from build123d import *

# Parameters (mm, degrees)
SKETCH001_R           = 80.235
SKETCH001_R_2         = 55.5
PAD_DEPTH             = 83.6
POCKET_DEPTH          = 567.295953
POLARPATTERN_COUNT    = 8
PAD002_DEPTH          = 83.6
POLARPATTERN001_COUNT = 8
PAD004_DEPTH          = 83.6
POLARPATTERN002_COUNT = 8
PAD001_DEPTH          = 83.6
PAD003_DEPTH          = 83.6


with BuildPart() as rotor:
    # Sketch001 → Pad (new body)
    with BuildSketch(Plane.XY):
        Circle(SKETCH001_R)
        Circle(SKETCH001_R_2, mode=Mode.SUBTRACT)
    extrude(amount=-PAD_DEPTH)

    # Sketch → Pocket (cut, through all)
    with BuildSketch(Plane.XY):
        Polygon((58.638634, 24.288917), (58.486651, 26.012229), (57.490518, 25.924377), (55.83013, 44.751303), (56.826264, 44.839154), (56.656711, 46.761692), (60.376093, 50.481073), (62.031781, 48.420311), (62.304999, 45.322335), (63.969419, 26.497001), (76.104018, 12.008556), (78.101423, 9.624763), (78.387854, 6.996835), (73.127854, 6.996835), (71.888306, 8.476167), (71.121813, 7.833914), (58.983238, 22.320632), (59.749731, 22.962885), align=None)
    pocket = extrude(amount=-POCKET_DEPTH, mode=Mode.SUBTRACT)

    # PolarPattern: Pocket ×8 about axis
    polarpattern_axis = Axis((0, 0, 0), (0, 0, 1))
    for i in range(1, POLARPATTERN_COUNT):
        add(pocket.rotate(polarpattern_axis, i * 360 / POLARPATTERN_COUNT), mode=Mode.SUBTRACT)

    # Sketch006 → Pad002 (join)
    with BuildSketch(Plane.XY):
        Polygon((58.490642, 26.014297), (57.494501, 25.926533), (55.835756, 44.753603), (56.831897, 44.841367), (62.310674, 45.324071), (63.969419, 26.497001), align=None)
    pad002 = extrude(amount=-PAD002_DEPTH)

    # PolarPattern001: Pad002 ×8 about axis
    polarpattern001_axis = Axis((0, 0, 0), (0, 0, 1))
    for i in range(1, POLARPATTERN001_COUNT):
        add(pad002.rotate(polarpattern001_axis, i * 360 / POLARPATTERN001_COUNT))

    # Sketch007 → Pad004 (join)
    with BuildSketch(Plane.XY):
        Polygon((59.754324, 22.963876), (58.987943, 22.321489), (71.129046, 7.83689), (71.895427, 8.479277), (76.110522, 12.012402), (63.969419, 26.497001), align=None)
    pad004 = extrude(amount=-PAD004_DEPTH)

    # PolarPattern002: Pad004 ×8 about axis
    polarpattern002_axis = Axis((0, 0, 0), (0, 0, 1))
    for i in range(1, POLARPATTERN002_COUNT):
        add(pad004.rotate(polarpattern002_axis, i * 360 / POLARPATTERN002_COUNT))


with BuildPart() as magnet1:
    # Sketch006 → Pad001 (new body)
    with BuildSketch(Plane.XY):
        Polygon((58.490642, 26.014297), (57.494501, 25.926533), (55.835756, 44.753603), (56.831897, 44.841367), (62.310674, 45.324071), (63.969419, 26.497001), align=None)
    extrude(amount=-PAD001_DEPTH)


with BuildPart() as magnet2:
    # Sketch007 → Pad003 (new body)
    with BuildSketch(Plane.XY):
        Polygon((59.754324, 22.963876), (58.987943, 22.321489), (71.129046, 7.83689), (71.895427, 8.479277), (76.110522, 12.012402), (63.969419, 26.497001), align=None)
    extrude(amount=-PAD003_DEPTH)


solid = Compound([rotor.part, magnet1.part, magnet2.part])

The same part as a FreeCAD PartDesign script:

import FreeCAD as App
import Part
import Sketcher
from FreeCAD import Vector
Q = App.Units.Quantity

doc = App.newDocument("Part")
body = doc.addObject("PartDesign::Body", "Body")

# Sketch on XY plane
sketch1 = body.newObject("Sketcher::SketchObject", "Sketch")
sketch1.AttachmentSupport = (doc.getObject("XY_Plane"), [""])
sketch1.MapMode = "FlatFace"
sketch1.addGeometry(Part.Circle(Vector(0, 0, 0), Vector(0, 0, 1), 80.235), False)
sketch1.addGeometry(Part.Circle(Vector(0, 0, 0), Vector(0, 0, 1), 55.5), False)
sketch1.addConstraint(Sketcher.Constraint("Coincident", 0, 3, -1, 1))
sketch1.addConstraint(Sketcher.Constraint("Coincident", 1, 3, -1, 1))
sketch1.addConstraint(Sketcher.Constraint("Diameter", 1, Q("111 mm")))
sketch1.addConstraint(Sketcher.Constraint("Diameter", 0, Q("160.47 mm")))
pad1 = body.newObject("PartDesign::Pad", "Pad")
pad1.Profile = sketch1
pad1.Length = 83.6
pad1.Reversed = True

# Sketch on XY plane
sketch2 = body.newObject("Sketcher::SketchObject", "Sketch001")
sketch2.AttachmentSupport = (doc.getObject("XY_Plane"), [""])
sketch2.MapMode = "FlatFace"
sketch2.addGeometry(Part.LineSegment(Vector(58.486651, 26.012229, 0), Vector(58.638634, 24.288917, 0)), False)
sketch2.addGeometry(Part.LineSegment(Vector(58.638634, 24.288917, 0), Vector(59.749731, 22.962885, 0)), False)
sketch2.addGeometry(Part.LineSegment(Vector(59.749731, 22.962885, 0), Vector(58.983238, 22.320632, 0)), False)
sketch2.addGeometry(Part.LineSegment(Vector(58.983238, 22.320632, 0), Vector(71.121813, 7.833914, 0)), False)
sketch2.addGeometry(Part.LineSegment(Vector(71.121813, 7.833914, 0), Vector(71.888306, 8.476167, 0)), False)
sketch2.addGeometry(Part.LineSegment(Vector(71.888306, 8.476167, 0), Vector(73.127854, 6.996835, 0)), False)
sketch2.addGeometry(Part.LineSegment(Vector(73.127854, 6.996835, 0), Vector(78.387854, 6.996835, 0)), False)
sketch2.addGeometry(Part.LineSegment(Vector(78.387854, 6.996835, 0), Vector(78.101423, 9.624763, 0)), False)
sketch2.addGeometry(Part.LineSegment(Vector(78.101423, 9.624763, 0), Vector(76.104018, 12.008556, 0)), False)
sketch2.addGeometry(Part.LineSegment(Vector(76.104018, 12.008556, 0), Vector(63.969419, 26.497001, 0)), False)
sketch2.addGeometry(Part.LineSegment(Vector(63.969419, 26.497001, 0), Vector(62.304999, 45.322335, 0)), False)
sketch2.addGeometry(Part.LineSegment(Vector(62.304999, 45.322335, 0), Vector(62.031781, 48.420311, 0)), False)
sketch2.addGeometry(Part.LineSegment(Vector(62.031781, 48.420311, 0), Vector(60.376093, 50.481073, 0)), False)
sketch2.addGeometry(Part.LineSegment(Vector(60.376093, 50.481073, 0), Vector(56.656711, 46.761692, 0)), False)
sketch2.addGeometry(Part.LineSegment(Vector(56.656711, 46.761692, 0), Vector(56.826264, 44.839154, 0)), False)
sketch2.addGeometry(Part.LineSegment(Vector(56.826264, 44.839154, 0), Vector(55.83013, 44.751303, 0)), False)
sketch2.addGeometry(Part.LineSegment(Vector(55.83013, 44.751303, 0), Vector(57.490518, 25.924377, 0)), False)
sketch2.addGeometry(Part.LineSegment(Vector(57.490518, 25.924377, 0), Vector(58.486651, 26.012229, 0)), False)
sketch2.addConstraint(Sketcher.Constraint("Coincident", 0, 2, 1, 1))
sketch2.addConstraint(Sketcher.Constraint("Coincident", 1, 2, 2, 1))
sketch2.addConstraint(Sketcher.Constraint("Coincident", 2, 2, 3, 1))
sketch2.addConstraint(Sketcher.Constraint("Coincident", 3, 2, 4, 1))
sketch2.addConstraint(Sketcher.Constraint("Coincident", 4, 2, 5, 1))
sketch2.addConstraint(Sketcher.Constraint("Coincident", 5, 2, 6, 1))
sketch2.addConstraint(Sketcher.Constraint("Coincident", 6, 2, 7, 1))
sketch2.addConstraint(Sketcher.Constraint("Coincident", 7, 2, 8, 1))
sketch2.addConstraint(Sketcher.Constraint("Coincident", 8, 2, 9, 1))
sketch2.addConstraint(Sketcher.Constraint("Coincident", 9, 2, 10, 1))
sketch2.addConstraint(Sketcher.Constraint("Coincident", 10, 2, 11, 1))
sketch2.addConstraint(Sketcher.Constraint("Coincident", 11, 2, 12, 1))
sketch2.addConstraint(Sketcher.Constraint("Coincident", 12, 2, 13, 1))
sketch2.addConstraint(Sketcher.Constraint("Coincident", 13, 2, 14, 1))
sketch2.addConstraint(Sketcher.Constraint("Coincident", 14, 2, 15, 1))
sketch2.addConstraint(Sketcher.Constraint("Coincident", 15, 2, 16, 1))
sketch2.addConstraint(Sketcher.Constraint("Coincident", 16, 2, 17, 1))
sketch2.addConstraint(Sketcher.Constraint("Coincident", 17, 2, 0, 1))
sketch2.addConstraint(Sketcher.Constraint("Horizontal", 6))
sketch2.addConstraint(Sketcher.Constraint("Perpendicular", 1, 2))
sketch2.addConstraint(Sketcher.Constraint("Perpendicular", 2, 3))
sketch2.addConstraint(Sketcher.Constraint("Perpendicular", 3, 4))
sketch2.addConstraint(Sketcher.Constraint("Perpendicular", 4, 5))
sketch2.addConstraint(Sketcher.Constraint("Parallel", 5, 8))
sketch2.addConstraint(Sketcher.Constraint("Parallel", 0, 11))
sketch2.addConstraint(Sketcher.Constraint("Parallel", 11, 14))
sketch2.addConstraint(Sketcher.Constraint("Perpendicular", 14, 15))
sketch2.addConstraint(Sketcher.Constraint("Perpendicular", 15, 16))
sketch2.addConstraint(Sketcher.Constraint("Perpendicular", 16, 17))
sketch2.addConstraint(Sketcher.Constraint("Equal", 0, 1))
sketch2.addConstraint(Sketcher.Constraint("Equal", 2, 4))
sketch2.addConstraint(Sketcher.Constraint("Equal", 9, 10))
sketch2.addConstraint(Sketcher.Constraint("Equal", 8, 11))
sketch2.addConstraint(Sketcher.Constraint("Equal", 7, 12))
sketch2.addConstraint(Sketcher.Constraint("Equal", 5, 14))
sketch2.addConstraint(Sketcher.Constraint("Equal", 4, 15))
sketch2.addConstraint(Sketcher.Constraint("Equal", 3, 16))
sketch2.addConstraint(Sketcher.Constraint("Equal", 15, 17))
sketch2.addConstraint(Sketcher.Constraint("Angle", 13, Q("-135.000008 deg")))
sketch2.addConstraint(Sketcher.Constraint("Distance", 2, Q("1 mm")))
sketch2.addConstraint(Sketcher.Constraint("Distance", 3, Q("18.9 mm")))
sketch2.addConstraint(Sketcher.Constraint("DistanceX", 6, 1, 6, 2, Q("5.26 mm")))
sketch2.addConstraint(Sketcher.Constraint("Angle", 0, Q("-84.959988 deg")))
sketch2.addConstraint(Sketcher.Constraint("Angle", 1, Q("-50.039983 deg")))
sketch2.addConstraint(Sketcher.Constraint("Distance", 0, Q("1.730001 mm")))
sketch2.addConstraint(Sketcher.Constraint("Distance", 5, Q("1.930001 mm")))
sketch2.addConstraint(Sketcher.Constraint("Distance", 8, Q("3.109999 mm")))
sketch2.addConstraint(Sketcher.Constraint("Distance", 13, Q("5.26 mm")))
sketch2.addConstraint(Sketcher.Constraint("DistanceY", -1, 1, 9, 2, Q("26.497001 mm")))
sketch2.addConstraint(Sketcher.Constraint("DistanceX", -1, 1, 10, 2, Q("62.304999 mm")))
sketch2.addConstraint(Sketcher.Constraint("DistanceX", 9, 2, 8, 2, Q("12.134599 mm")))
sketch2.addConstraint(Sketcher.Constraint("DistanceX", 16, 2, 9, 2, Q("6.478901 mm")))
sketch2.addConstraint(Sketcher.Constraint("Distance", 7, Q("2.643492 mm")))
sketch2.addConstraint(Sketcher.Constraint("Distance", 9, Q("18.898771 mm")))
pocket1 = body.newObject("PartDesign::Pocket", "Pocket")
pocket1.Profile = sketch2
pocket1.Type = "ThroughAll"
doc.recompute()

polarpattern = body.newObject("PartDesign::PolarPattern", "PolarPattern")
polarpattern.Originals = [pocket1]
polarpattern.Axis = (doc.getObject("Z_Axis"), [""])
polarpattern.Angle = 360
polarpattern.Occurrences = 8
body.Tip = polarpattern

# Sketch on XY plane
sketch3 = body.newObject("Sketcher::SketchObject", "Sketch002")
sketch3.AttachmentSupport = (doc.getObject("XY_Plane"), [""])
sketch3.MapMode = "FlatFace"
sketch3.addGeometry(Part.LineSegment(Vector(57.494501, 25.926533, 0), Vector(58.490642, 26.014297, 0)), False)
sketch3.addGeometry(Part.LineSegment(Vector(58.490642, 26.014297, 0), Vector(63.969419, 26.497001, 0)), False)
sketch3.addGeometry(Part.LineSegment(Vector(63.969419, 26.497001, 0), Vector(62.310674, 45.324071, 0)), False)
sketch3.addGeometry(Part.LineSegment(Vector(62.310674, 45.324071, 0), Vector(56.831897, 44.841367, 0)), False)
sketch3.addGeometry(Part.LineSegment(Vector(56.831897, 44.841367, 0), Vector(55.835756, 44.753603, 0)), False)
sketch3.addGeometry(Part.LineSegment(Vector(55.835756, 44.753603, 0), Vector(57.494501, 25.926533, 0)), False)
sketch3.addConstraint(Sketcher.Constraint("Coincident", 0, 2, 1, 1))
sketch3.addConstraint(Sketcher.Constraint("Coincident", 1, 2, 2, 1))
sketch3.addConstraint(Sketcher.Constraint("Coincident", 2, 2, 3, 1))
sketch3.addConstraint(Sketcher.Constraint("Coincident", 3, 2, 4, 1))
sketch3.addConstraint(Sketcher.Constraint("Coincident", 4, 2, 5, 1))
sketch3.addConstraint(Sketcher.Constraint("Coincident", 5, 2, 0, 1))
sketch3.addConstraint(Sketcher.Constraint("Parallel", 0, 1))
sketch3.addConstraint(Sketcher.Constraint("Perpendicular", 1, 2))
sketch3.addConstraint(Sketcher.Constraint("Perpendicular", 2, 3))
sketch3.addConstraint(Sketcher.Constraint("Parallel", 3, 4))
sketch3.addConstraint(Sketcher.Constraint("Perpendicular", 4, 5))
sketch3.addConstraint(Sketcher.Constraint("Equal", 1, 3))
sketch3.addConstraint(Sketcher.Constraint("Distance", 0, Q("1 mm")))
sketch3.addConstraint(Sketcher.Constraint("Distance", 1, Q("5.5 mm")))
sketch3.addConstraint(Sketcher.Constraint("Distance", 2, Q("18.9 mm")))
sketch3.addConstraint(Sketcher.Constraint("DistanceY", -1, 1, 1, 2, Q("26.497001 mm")))
sketch3.addConstraint(Sketcher.Constraint("DistanceX", -1, 1, 5, 2, Q("57.494501 mm")))
sketch3.addConstraint(Sketcher.Constraint("DistanceY", 1, 2, 4, 2, Q("18.256602 mm")))
pad2 = body.newObject("PartDesign::Pad", "Pad001")
pad2.Profile = sketch3
pad2.Length = 83.6
pad2.Reversed = True
doc.recompute()

polarpattern2 = body.newObject("PartDesign::PolarPattern", "PolarPattern001")
polarpattern2.Originals = [pad2]
polarpattern2.Axis = (doc.getObject("Z_Axis"), [""])
polarpattern2.Angle = 360
polarpattern2.Occurrences = 8
body.Tip = polarpattern2

# Sketch on XY plane
sketch4 = body.newObject("Sketcher::SketchObject", "Sketch003")
sketch4.AttachmentSupport = (doc.getObject("XY_Plane"), [""])
sketch4.MapMode = "FlatFace"
sketch4.addGeometry(Part.LineSegment(Vector(59.754324, 22.963876, 0), Vector(58.987943, 22.321489, 0)), False)
sketch4.addGeometry(Part.LineSegment(Vector(58.987943, 22.321489, 0), Vector(71.129046, 7.83689, 0)), False)
sketch4.addGeometry(Part.LineSegment(Vector(71.129046, 7.83689, 0), Vector(71.895427, 8.479277, 0)), False)
sketch4.addGeometry(Part.LineSegment(Vector(71.895427, 8.479277, 0), Vector(76.110522, 12.012402, 0)), False)
sketch4.addGeometry(Part.LineSegment(Vector(76.110522, 12.012402, 0), Vector(63.969419, 26.497001, 0)), False)
sketch4.addGeometry(Part.LineSegment(Vector(63.969419, 26.497001, 0), Vector(59.754324, 22.963876, 0)), False)
sketch4.addConstraint(Sketcher.Constraint("Coincident", 0, 2, 1, 1))
sketch4.addConstraint(Sketcher.Constraint("Coincident", 1, 2, 2, 1))
sketch4.addConstraint(Sketcher.Constraint("Coincident", 2, 2, 3, 1))
sketch4.addConstraint(Sketcher.Constraint("Coincident", 3, 2, 4, 1))
sketch4.addConstraint(Sketcher.Constraint("Coincident", 4, 2, 5, 1))
sketch4.addConstraint(Sketcher.Constraint("Coincident", 5, 2, 0, 1))
sketch4.addConstraint(Sketcher.Constraint("Perpendicular", 0, 1))
sketch4.addConstraint(Sketcher.Constraint("Perpendicular", 1, 2))
sketch4.addConstraint(Sketcher.Constraint("Parallel", 2, 3))
sketch4.addConstraint(Sketcher.Constraint("Perpendicular", 3, 4))
sketch4.addConstraint(Sketcher.Constraint("Perpendicular", 4, 5))
sketch4.addConstraint(Sketcher.Constraint("Equal", 0, 2))
sketch4.addConstraint(Sketcher.Constraint("Distance", 0, Q("1 mm")))
sketch4.addConstraint(Sketcher.Constraint("Distance", 1, Q("18.9 mm")))
sketch4.addConstraint(Sketcher.Constraint("Distance", 3, Q("5.5 mm")))
sketch4.addConstraint(Sketcher.Constraint("Angle", 1, Q("-50.030001 deg")))
sketch4.addConstraint(Sketcher.Constraint("DistanceY", -1, 1, 4, 2, Q("26.497001 mm")))
sketch4.addConstraint(Sketcher.Constraint("DistanceX", -1, 1, 4, 2, Q("63.969419 mm")))
pad3 = body.newObject("PartDesign::Pad", "Pad002")
pad3.Profile = sketch4
pad3.Length = 83.6
pad3.Reversed = True
doc.recompute()

polarpattern3 = body.newObject("PartDesign::PolarPattern", "PolarPattern002")
polarpattern3.Originals = [pad3]
polarpattern3.Axis = (doc.getObject("Z_Axis"), [""])
polarpattern3.Angle = 360
polarpattern3.Occurrences = 8
body.Tip = polarpattern3
body2 = doc.addObject("PartDesign::Body", "Body001")

# Sketch on XY plane
sketch5 = body2.newObject("Sketcher::SketchObject", "Sketch004")
sketch5.AttachmentSupport = (doc.getObject("XY_Plane001"), [""])
sketch5.MapMode = "FlatFace"
sketch5.addGeometry(Part.LineSegment(Vector(57.494501, 25.926533, 0), Vector(58.490642, 26.014297, 0)), False)
sketch5.addGeometry(Part.LineSegment(Vector(58.490642, 26.014297, 0), Vector(63.969419, 26.497001, 0)), False)
sketch5.addGeometry(Part.LineSegment(Vector(63.969419, 26.497001, 0), Vector(62.310674, 45.324071, 0)), False)
sketch5.addGeometry(Part.LineSegment(Vector(62.310674, 45.324071, 0), Vector(56.831897, 44.841367, 0)), False)
sketch5.addGeometry(Part.LineSegment(Vector(56.831897, 44.841367, 0), Vector(55.835756, 44.753603, 0)), False)
sketch5.addGeometry(Part.LineSegment(Vector(55.835756, 44.753603, 0), Vector(57.494501, 25.926533, 0)), False)
sketch5.addConstraint(Sketcher.Constraint("Coincident", 0, 2, 1, 1))
sketch5.addConstraint(Sketcher.Constraint("Coincident", 1, 2, 2, 1))
sketch5.addConstraint(Sketcher.Constraint("Coincident", 2, 2, 3, 1))
sketch5.addConstraint(Sketcher.Constraint("Coincident", 3, 2, 4, 1))
sketch5.addConstraint(Sketcher.Constraint("Coincident", 4, 2, 5, 1))
sketch5.addConstraint(Sketcher.Constraint("Coincident", 5, 2, 0, 1))
sketch5.addConstraint(Sketcher.Constraint("Parallel", 0, 1))
sketch5.addConstraint(Sketcher.Constraint("Perpendicular", 1, 2))
sketch5.addConstraint(Sketcher.Constraint("Perpendicular", 2, 3))
sketch5.addConstraint(Sketcher.Constraint("Parallel", 3, 4))
sketch5.addConstraint(Sketcher.Constraint("Perpendicular", 4, 5))
sketch5.addConstraint(Sketcher.Constraint("Equal", 1, 3))
sketch5.addConstraint(Sketcher.Constraint("Distance", 0, Q("1 mm")))
sketch5.addConstraint(Sketcher.Constraint("Distance", 1, Q("5.5 mm")))
sketch5.addConstraint(Sketcher.Constraint("Distance", 2, Q("18.9 mm")))
sketch5.addConstraint(Sketcher.Constraint("DistanceY", -1, 1, 1, 2, Q("26.497001 mm")))
sketch5.addConstraint(Sketcher.Constraint("DistanceX", -1, 1, 5, 2, Q("57.494501 mm")))
sketch5.addConstraint(Sketcher.Constraint("DistanceY", 1, 2, 4, 2, Q("18.256602 mm")))
pad4 = body2.newObject("PartDesign::Pad", "Pad003")
pad4.Profile = sketch5
pad4.Length = 83.6
pad4.Reversed = True
body3 = doc.addObject("PartDesign::Body", "Body002")

# Sketch on XY plane
sketch6 = body3.newObject("Sketcher::SketchObject", "Sketch005")
sketch6.AttachmentSupport = (doc.getObject("XY_Plane002"), [""])
sketch6.MapMode = "FlatFace"
sketch6.addGeometry(Part.LineSegment(Vector(59.754324, 22.963876, 0), Vector(58.987943, 22.321489, 0)), False)
sketch6.addGeometry(Part.LineSegment(Vector(58.987943, 22.321489, 0), Vector(71.129046, 7.83689, 0)), False)
sketch6.addGeometry(Part.LineSegment(Vector(71.129046, 7.83689, 0), Vector(71.895427, 8.479277, 0)), False)
sketch6.addGeometry(Part.LineSegment(Vector(71.895427, 8.479277, 0), Vector(76.110522, 12.012402, 0)), False)
sketch6.addGeometry(Part.LineSegment(Vector(76.110522, 12.012402, 0), Vector(63.969419, 26.497001, 0)), False)
sketch6.addGeometry(Part.LineSegment(Vector(63.969419, 26.497001, 0), Vector(59.754324, 22.963876, 0)), False)
sketch6.addConstraint(Sketcher.Constraint("Coincident", 0, 2, 1, 1))
sketch6.addConstraint(Sketcher.Constraint("Coincident", 1, 2, 2, 1))
sketch6.addConstraint(Sketcher.Constraint("Coincident", 2, 2, 3, 1))
sketch6.addConstraint(Sketcher.Constraint("Coincident", 3, 2, 4, 1))
sketch6.addConstraint(Sketcher.Constraint("Coincident", 4, 2, 5, 1))
sketch6.addConstraint(Sketcher.Constraint("Coincident", 5, 2, 0, 1))
sketch6.addConstraint(Sketcher.Constraint("Perpendicular", 0, 1))
sketch6.addConstraint(Sketcher.Constraint("Perpendicular", 1, 2))
sketch6.addConstraint(Sketcher.Constraint("Parallel", 2, 3))
sketch6.addConstraint(Sketcher.Constraint("Perpendicular", 3, 4))
sketch6.addConstraint(Sketcher.Constraint("Perpendicular", 4, 5))
sketch6.addConstraint(Sketcher.Constraint("Equal", 0, 2))
sketch6.addConstraint(Sketcher.Constraint("Distance", 0, Q("1 mm")))
sketch6.addConstraint(Sketcher.Constraint("Distance", 1, Q("18.9 mm")))
sketch6.addConstraint(Sketcher.Constraint("Distance", 3, Q("5.5 mm")))
sketch6.addConstraint(Sketcher.Constraint("Angle", 1, Q("-50.030001 deg")))
sketch6.addConstraint(Sketcher.Constraint("DistanceY", -1, 1, 4, 2, Q("26.497001 mm")))
sketch6.addConstraint(Sketcher.Constraint("DistanceX", -1, 1, 4, 2, Q("63.969419 mm")))
pad5 = body3.newObject("PartDesign::Pad", "Pad004")
pad5.Profile = sketch6
pad5.Length = 83.6
pad5.Reversed = True

doc.recompute()
